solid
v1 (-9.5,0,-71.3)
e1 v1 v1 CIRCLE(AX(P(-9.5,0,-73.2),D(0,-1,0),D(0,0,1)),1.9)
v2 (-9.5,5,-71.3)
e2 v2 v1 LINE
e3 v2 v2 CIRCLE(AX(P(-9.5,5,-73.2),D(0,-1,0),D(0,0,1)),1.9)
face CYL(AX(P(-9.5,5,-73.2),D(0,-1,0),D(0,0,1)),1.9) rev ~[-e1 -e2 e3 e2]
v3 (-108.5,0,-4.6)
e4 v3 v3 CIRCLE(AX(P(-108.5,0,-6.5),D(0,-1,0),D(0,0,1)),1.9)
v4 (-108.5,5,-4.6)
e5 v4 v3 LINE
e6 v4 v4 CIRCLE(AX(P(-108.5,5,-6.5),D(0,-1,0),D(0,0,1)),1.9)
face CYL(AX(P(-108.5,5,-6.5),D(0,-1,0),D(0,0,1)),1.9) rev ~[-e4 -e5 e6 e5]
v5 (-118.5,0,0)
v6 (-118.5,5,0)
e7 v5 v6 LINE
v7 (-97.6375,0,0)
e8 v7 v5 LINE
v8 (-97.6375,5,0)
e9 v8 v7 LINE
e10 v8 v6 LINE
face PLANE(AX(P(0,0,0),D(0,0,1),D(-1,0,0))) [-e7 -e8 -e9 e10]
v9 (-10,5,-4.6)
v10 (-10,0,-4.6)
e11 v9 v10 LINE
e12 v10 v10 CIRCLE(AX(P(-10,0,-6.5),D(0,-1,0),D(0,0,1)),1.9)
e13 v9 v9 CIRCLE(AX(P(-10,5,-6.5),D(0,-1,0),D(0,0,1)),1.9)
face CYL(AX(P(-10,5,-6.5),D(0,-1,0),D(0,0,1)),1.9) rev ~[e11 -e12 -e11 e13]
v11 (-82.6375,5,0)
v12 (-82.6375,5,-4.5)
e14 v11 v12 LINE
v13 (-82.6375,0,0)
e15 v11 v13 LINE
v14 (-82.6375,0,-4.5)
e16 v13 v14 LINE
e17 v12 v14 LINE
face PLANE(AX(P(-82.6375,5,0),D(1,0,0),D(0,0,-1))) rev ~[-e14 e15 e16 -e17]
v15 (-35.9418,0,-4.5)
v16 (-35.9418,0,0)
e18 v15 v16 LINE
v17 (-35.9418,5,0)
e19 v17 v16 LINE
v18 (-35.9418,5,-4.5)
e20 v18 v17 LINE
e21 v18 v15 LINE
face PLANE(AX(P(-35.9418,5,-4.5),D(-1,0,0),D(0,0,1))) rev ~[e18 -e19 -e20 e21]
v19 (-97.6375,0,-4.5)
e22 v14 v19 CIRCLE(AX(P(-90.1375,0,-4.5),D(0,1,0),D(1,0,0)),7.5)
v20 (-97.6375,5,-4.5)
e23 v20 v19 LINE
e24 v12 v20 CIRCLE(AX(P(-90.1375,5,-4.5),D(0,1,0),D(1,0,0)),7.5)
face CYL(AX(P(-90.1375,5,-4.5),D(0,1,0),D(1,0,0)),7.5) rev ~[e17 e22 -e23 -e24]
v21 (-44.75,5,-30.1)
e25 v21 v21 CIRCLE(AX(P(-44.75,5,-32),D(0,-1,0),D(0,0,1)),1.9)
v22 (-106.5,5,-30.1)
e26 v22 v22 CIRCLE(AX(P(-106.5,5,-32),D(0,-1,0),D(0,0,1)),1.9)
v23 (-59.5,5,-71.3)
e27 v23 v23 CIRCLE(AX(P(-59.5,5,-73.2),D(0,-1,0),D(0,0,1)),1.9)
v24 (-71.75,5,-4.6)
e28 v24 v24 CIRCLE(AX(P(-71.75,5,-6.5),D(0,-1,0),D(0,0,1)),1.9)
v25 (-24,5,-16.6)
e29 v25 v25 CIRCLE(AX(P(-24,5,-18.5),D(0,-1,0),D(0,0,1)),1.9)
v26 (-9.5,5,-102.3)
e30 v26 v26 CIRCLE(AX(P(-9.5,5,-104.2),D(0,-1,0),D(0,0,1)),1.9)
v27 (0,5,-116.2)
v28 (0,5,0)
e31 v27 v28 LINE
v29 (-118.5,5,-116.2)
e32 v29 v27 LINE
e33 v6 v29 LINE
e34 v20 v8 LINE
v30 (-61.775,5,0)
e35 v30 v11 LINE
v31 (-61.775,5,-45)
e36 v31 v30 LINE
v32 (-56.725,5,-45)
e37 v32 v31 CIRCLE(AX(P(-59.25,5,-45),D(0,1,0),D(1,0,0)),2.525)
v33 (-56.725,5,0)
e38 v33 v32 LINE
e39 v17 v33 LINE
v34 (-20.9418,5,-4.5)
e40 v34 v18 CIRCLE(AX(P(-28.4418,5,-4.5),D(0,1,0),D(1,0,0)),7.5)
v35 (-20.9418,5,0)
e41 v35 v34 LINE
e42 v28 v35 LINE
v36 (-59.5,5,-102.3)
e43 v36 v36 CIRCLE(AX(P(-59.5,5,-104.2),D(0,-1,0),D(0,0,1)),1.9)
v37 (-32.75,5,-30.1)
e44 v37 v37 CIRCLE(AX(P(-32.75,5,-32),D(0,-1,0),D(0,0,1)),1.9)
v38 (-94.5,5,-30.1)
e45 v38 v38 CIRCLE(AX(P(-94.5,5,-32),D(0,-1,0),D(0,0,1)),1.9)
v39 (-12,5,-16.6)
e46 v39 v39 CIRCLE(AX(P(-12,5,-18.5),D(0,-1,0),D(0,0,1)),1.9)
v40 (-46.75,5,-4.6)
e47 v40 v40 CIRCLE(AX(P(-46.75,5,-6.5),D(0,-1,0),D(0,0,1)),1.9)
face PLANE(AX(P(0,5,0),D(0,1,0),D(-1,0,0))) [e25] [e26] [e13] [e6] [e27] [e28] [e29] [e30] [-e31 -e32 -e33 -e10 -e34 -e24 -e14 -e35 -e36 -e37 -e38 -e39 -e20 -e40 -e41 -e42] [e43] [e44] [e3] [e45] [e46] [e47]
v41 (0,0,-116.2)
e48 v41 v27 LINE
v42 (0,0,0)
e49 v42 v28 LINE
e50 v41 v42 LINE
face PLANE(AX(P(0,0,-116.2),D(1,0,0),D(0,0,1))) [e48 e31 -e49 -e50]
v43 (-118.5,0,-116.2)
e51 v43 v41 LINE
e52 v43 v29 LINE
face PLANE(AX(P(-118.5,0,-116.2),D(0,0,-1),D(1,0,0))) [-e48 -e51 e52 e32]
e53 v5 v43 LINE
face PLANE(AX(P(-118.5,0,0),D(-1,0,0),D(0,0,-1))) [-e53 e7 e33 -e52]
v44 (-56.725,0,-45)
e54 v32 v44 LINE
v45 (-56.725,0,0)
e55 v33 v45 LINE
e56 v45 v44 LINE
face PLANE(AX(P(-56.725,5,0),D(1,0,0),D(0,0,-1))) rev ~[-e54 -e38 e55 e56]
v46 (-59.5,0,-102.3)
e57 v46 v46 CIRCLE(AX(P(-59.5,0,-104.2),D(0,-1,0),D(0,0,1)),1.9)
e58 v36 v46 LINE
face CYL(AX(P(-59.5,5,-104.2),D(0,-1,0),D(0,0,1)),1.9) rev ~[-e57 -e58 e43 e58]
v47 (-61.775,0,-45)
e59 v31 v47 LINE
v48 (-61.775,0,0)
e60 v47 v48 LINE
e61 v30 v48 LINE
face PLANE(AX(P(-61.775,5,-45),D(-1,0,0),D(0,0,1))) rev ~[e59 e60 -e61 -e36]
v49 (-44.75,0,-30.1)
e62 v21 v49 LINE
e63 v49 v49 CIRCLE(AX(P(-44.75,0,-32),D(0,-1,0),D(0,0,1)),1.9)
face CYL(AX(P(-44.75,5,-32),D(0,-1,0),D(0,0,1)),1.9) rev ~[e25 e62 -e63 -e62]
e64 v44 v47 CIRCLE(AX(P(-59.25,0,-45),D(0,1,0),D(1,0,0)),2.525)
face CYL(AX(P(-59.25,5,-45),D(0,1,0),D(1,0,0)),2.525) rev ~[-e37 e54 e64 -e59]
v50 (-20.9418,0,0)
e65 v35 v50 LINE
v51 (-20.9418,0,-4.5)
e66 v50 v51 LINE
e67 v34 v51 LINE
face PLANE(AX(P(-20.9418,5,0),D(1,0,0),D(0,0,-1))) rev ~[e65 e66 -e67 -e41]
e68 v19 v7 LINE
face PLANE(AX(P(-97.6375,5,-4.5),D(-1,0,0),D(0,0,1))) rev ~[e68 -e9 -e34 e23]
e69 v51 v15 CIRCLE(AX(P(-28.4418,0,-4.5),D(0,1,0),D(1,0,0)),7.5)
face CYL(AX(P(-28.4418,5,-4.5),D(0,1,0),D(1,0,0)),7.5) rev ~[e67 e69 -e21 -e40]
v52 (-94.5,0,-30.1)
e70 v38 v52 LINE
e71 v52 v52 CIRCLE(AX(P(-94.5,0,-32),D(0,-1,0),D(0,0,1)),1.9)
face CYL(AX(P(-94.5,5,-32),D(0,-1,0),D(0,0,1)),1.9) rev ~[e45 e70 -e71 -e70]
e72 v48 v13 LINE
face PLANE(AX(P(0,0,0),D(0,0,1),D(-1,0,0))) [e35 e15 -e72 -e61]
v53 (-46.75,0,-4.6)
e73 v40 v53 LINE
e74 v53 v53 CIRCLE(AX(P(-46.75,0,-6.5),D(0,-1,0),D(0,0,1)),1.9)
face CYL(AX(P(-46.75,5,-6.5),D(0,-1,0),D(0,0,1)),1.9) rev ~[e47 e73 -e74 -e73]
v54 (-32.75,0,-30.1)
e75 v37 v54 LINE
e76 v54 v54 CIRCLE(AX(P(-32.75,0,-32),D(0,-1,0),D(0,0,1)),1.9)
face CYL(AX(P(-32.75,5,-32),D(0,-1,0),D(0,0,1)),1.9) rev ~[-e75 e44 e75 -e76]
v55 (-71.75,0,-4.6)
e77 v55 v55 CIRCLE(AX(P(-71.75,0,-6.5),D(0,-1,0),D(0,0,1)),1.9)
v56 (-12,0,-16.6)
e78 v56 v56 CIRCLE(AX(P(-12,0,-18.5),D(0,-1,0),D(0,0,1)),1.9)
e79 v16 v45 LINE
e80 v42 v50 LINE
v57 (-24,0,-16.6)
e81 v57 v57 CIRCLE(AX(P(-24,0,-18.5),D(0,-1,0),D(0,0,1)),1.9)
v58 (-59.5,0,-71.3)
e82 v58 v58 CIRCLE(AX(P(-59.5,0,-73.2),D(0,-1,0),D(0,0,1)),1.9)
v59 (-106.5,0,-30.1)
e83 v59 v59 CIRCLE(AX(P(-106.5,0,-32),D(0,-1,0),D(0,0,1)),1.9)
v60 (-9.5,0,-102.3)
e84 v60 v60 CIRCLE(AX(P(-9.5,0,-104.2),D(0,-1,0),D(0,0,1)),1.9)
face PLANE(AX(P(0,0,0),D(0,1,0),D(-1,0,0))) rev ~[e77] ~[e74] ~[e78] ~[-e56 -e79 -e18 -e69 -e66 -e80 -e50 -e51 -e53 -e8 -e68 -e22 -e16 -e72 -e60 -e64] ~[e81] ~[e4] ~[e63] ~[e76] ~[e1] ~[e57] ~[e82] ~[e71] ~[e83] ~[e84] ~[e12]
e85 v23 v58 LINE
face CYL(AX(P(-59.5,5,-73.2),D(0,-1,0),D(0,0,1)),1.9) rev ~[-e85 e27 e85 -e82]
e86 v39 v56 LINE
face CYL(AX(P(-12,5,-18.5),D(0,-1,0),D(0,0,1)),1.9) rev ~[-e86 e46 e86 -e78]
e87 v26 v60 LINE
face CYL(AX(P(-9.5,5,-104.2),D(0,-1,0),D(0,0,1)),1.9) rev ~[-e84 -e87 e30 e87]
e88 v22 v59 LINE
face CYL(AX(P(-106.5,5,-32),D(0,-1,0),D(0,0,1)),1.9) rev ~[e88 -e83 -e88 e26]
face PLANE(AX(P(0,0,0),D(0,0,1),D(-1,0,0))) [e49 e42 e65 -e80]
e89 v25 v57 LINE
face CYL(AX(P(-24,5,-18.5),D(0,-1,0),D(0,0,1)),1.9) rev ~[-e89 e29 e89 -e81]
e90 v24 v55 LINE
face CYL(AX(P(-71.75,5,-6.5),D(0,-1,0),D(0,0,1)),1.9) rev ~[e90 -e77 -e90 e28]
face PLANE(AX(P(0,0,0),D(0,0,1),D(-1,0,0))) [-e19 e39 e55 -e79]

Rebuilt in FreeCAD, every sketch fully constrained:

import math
import FreeCAD as App
import Part
import Sketcher
Q = App.Units.Quantity

doc = App.newDocument("Part")
body = doc.addObject("PartDesign::Body", "Body")

sketch1 = doc.addObject("Sketcher::SketchObject", "Sketch")
body.addObject(sketch1)
sketch1.AttachmentSupport = (doc.XZ_Plane, [""])
sketch1.MapMode = "FlatFace"
sketch1.addGeometry([
    Part.LineSegment(App.Vector(-118, 0, 0), App.Vector(0, 0, 0)),
    Part.LineSegment(App.Vector(0, 0, 0), App.Vector(0, -116, 0)),
    Part.LineSegment(App.Vector(0, -116, 0), App.Vector(-118, -116, 0)),
    Part.LineSegment(App.Vector(-118, -116, 0), App.Vector(-118, 0, 0)),
], False)
sketch1.addConstraint([
    Sketcher.Constraint("Coincident", 0, 2, 1, 1),
    Sketcher.Constraint("Coincident", 1, 2, 2, 1),
    Sketcher.Constraint("Coincident", 2, 2, 3, 1),
    Sketcher.Constraint("Coincident", 3, 2, 0, 1),
    Sketcher.Constraint("Horizontal", 0),
    Sketcher.Constraint("Vertical", 1),
    Sketcher.Constraint("Horizontal", 2),
    Sketcher.Constraint("Vertical", 3),
    Sketcher.Constraint("Coincident", 0, 2, -1, 1),
    Sketcher.Constraint("DistanceX", 0, 1, 0, 2, Q("118.5 mm")),
    Sketcher.Constraint("DistanceY", 1, 2, 1, 1, Q("116.2 mm")),
])
pad1 = doc.addObject("PartDesign::Pad", "Pad")
body.addObject(pad1)
pad1.Profile = sketch1
pad1.Length = 5
pad1.Reversed = True

sketch2 = doc.addObject("Sketcher::SketchObject", "Sketch001")
body.addObject(sketch2)
sketch2.AttachmentSupport = (doc.XZ_Plane, [""])
sketch2.MapMode = "FlatFace"
sketch2.AttachmentOffset = App.Placement(App.Vector(0, 0, -5), App.Rotation())
sketch2.addGeometry([
    Part.Circle(App.Vector(-59.5, -73.2, 0), App.Vector(0, 0, 1), 1.9),
    Part.Circle(App.Vector(-9.5, -73.2, 0), App.Vector(0, 0, 1), 1.9),
    Part.Circle(App.Vector(-59.5, -104.2, 0), App.Vector(0, 0, 1), 1.9),
    Part.Circle(App.Vector(-9.5, -104.2, 0), App.Vector(0, 0, 1), 1.9),
], False)
sketch2.addConstraint([
    Sketcher.Constraint("Equal", 0, 1),
    Sketcher.Constraint("Equal", 1, 2),
    Sketcher.Constraint("Equal", 2, 3),
    Sketcher.Constraint("Horizontal", 0, 3, 1, 3),
    Sketcher.Constraint("Horizontal", 2, 3, 3, 3),
    Sketcher.Constraint("Vertical", 0, 3, 2, 3),
    Sketcher.Constraint("Vertical", 1, 3, 3, 3),
    Sketcher.Constraint("Diameter", 0, Q("3.8 mm")),
    Sketcher.Constraint("DistanceX", 0, 3, 1, 3, Q("50 mm")),
    Sketcher.Constraint("DistanceY", 2, 3, 0, 3, Q("31 mm")),
    Sketcher.Constraint("DistanceX", 0, 3, -1, 1, Q("59.5 mm")),
    Sketcher.Constraint("DistanceY", 0, 3, -1, 1, Q("73.2 mm")),
])
doc.recompute()
hole = doc.addObject("PartDesign::Hole", "Hole")
body.addObject(hole)
hole.Profile = sketch2
hole.ThreadType = "None"
hole.Diameter = 3.8
hole.DepthType = "ThroughAll"
hole.Reversed = True

sketch3 = doc.addObject("Sketcher::SketchObject", "Sketch002")
body.addObject(sketch3)
sketch3.AttachmentSupport = (doc.XZ_Plane, [""])
sketch3.MapMode = "FlatFace"
sketch3.AttachmentOffset = App.Placement(App.Vector(0, 0, -5), App.Rotation())
sketch3.addGeometry([
    Part.LineSegment(App.Vector(-61.8, -45, 0), App.Vector(-61.8, 0, 0)),
    Part.LineSegment(App.Vector(-61.8, 0, 0), App.Vector(-56.7, 0, 0)),
    Part.LineSegment(App.Vector(-56.7, 0, 0), App.Vector(-56.7, -45, 0)),
    Part.ArcOfCircle(Part.Circle(App.Vector(-59.2, -45, 0), App.Vector(0, 0, 1), 2.5), math.radians(180), math.radians(360)),
], False)
sketch3.addConstraint([
    Sketcher.Constraint("Coincident", 0, 2, 1, 1),
    Sketcher.Constraint("Coincident", 1, 2, 2, 1),
    Sketcher.Constraint("Tangent", 2, 2, 3, 2),
    Sketcher.Constraint("Tangent", 3, 1, 0, 1),
    Sketcher.Constraint("Vertical", 0),
    Sketcher.Constraint("Horizontal", 1),
    Sketcher.Constraint("Vertical", 2),
    Sketcher.Constraint("PointOnObject", 0, 2, -1),
    Sketcher.Constraint("DistanceY", 0, 1, 0, 2, Q("45 mm")),
    Sketcher.Constraint("Radius", 3, Q("2.525 mm")),
    Sketcher.Constraint("DistanceX", 3, 3, -1, 1, Q("59.25 mm")),
])
pocket1 = doc.addObject("PartDesign::Pocket", "Pocket")
body.addObject(pocket1)
pocket1.Profile = sketch3
pocket1.Length = 10
pocket1.Reversed = True

sketch4 = doc.addObject("Sketcher::SketchObject", "Sketch003")
body.addObject(sketch4)
sketch4.AttachmentSupport = (doc.XZ_Plane, [""])
sketch4.MapMode = "FlatFace"
sketch4.AttachmentOffset = App.Placement(App.Vector(0, 0, -5), App.Rotation())
sketch4.addGeometry([
    Part.Circle(App.Vector(-106.5, -32, 0), App.Vector(0, 0, 1), 1.9),
    Part.Circle(App.Vector(-94.5, -32, 0), App.Vector(0, 0, 1), 1.9),
    Part.Circle(App.Vector(-44.8, -32, 0), App.Vector(0, 0, 1), 1.9),
    Part.Circle(App.Vector(-32.8, -32, 0), App.Vector(0, 0, 1), 1.9),
    Part.Circle(App.Vector(-12, -18.5, 0), App.Vector(0, 0, 1), 1.9),
    Part.Circle(App.Vector(-24, -18.5, 0), App.Vector(0, 0, 1), 1.9),
], False)
sketch4.addConstraint([
    Sketcher.Constraint("Equal", 0, 1),
    Sketcher.Constraint("Equal", 1, 2),
    Sketcher.Constraint("Equal", 2, 3),
    Sketcher.Constraint("Equal", 3, 4),
    Sketcher.Constraint("Equal", 4, 5),
    Sketcher.Constraint("Horizontal", 0, 3, 1, 3),
    Sketcher.Constraint("Horizontal", 1, 3, 2, 3),
    Sketcher.Constraint("Horizontal", 2, 3, 3, 3),
    Sketcher.Constraint("Horizontal", 4, 3, 5, 3),
    Sketcher.Constraint("Diameter", 0, Q("3.8 mm")),
    Sketcher.Constraint("DistanceY", 0, 3, -1, 1, Q("32 mm")),
    Sketcher.Constraint("DistanceX", 4, 3, -1, 1, Q("12 mm")),
    Sketcher.Constraint("DistanceX", 5, 3, -1, 1, Q("24 mm")),
    Sketcher.Constraint("DistanceX", 0, 3, 1, 3, Q("12 mm")),
    Sketcher.Constraint("DistanceX", 2, 3, 3, 3, Q("12 mm")),
    Sketcher.Constraint("DistanceX", 0, 3, -1, 1, Q("106.5 mm")),
    Sketcher.Constraint("DistanceY", 4, 3, -1, 1, Q("18.5 mm")),
    Sketcher.Constraint("DistanceX", 2, 3, -1, 1, Q("44.75 mm")),
])
doc.recompute()
hole2 = doc.addObject("PartDesign::Hole", "Hole001")
body.addObject(hole2)
hole2.Profile = sketch4
hole2.ThreadType = "None"
hole2.Diameter = 3.8
hole2.DepthType = "ThroughAll"
hole2.Reversed = True

sketch5 = doc.addObject("Sketcher::SketchObject", "Sketch004")
body.addObject(sketch5)
sketch5.AttachmentSupport = (doc.XZ_Plane, [""])
sketch5.MapMode = "FlatFace"
sketch5.AttachmentOffset = App.Placement(App.Vector(0, 0, -5), App.Rotation())
sketch5.addGeometry([
    Part.Circle(App.Vector(-108.5, -6.5, 0), App.Vector(0, 0, 1), 1.9),
    Part.Circle(App.Vector(-71.8, -6.5, 0), App.Vector(0, 0, 1), 1.9),
    Part.Circle(App.Vector(-46.8, -6.5, 0), App.Vector(0, 0, 1), 1.9),
    Part.Circle(App.Vector(-10, -6.5, 0), App.Vector(0, 0, 1), 1.9),
], False)
sketch5.addConstraint([
    Sketcher.Constraint("Equal", 0, 1),
    Sketcher.Constraint("Equal", 1, 2),
    Sketcher.Constraint("Equal", 2, 3),
    Sketcher.Constraint("Horizontal", 0, 3, 1, 3),
    Sketcher.Constraint("Horizontal", 1, 3, 2, 3),
    Sketcher.Constraint("Horizontal", 2, 3, 3, 3),
    Sketcher.Constraint("Diameter", 0, Q("3.8 mm")),
    Sketcher.Constraint("DistanceX", 3, 3, -1, 1, Q("10 mm")),
    Sketcher.Constraint("DistanceX", 1, 3, 2, 3, Q("25 mm")),
    Sketcher.Constraint("DistanceX", 0, 3, -1, 1, Q("108.5 mm")),
    Sketcher.Constraint("DistanceY", 0, 3, -1, 1, Q("6.5 mm")),
    Sketcher.Constraint("DistanceX", 1, 3, -1, 1, Q("71.75 mm")),
])
doc.recompute()
hole3 = doc.addObject("PartDesign::Hole", "Hole002")
body.addObject(hole3)
hole3.Profile = sketch5
hole3.ThreadType = "None"
hole3.Diameter = 3.8
hole3.DepthType = "ThroughAll"
hole3.Reversed = True

sketch6 = doc.addObject("Sketcher::SketchObject", "Sketch005")
body.addObject(sketch6)
sketch6.AttachmentSupport = (doc.XZ_Plane, [""])
sketch6.MapMode = "FlatFace"
sketch6.AttachmentOffset = App.Placement(App.Vector(0, 0, -5), App.Rotation())
sketch6.addGeometry([
    Part.LineSegment(App.Vector(-97.6, 0, 0), App.Vector(-82.6, 0, 0)),
    Part.LineSegment(App.Vector(-82.6, 0, 0), App.Vector(-82.6, -4.5, 0)),
    Part.ArcOfCircle(Part.Circle(App.Vector(-90.1, -4.5, 0), App.Vector(0, 0, 1), 7.5), math.radians(180), math.radians(360)),
    Part.LineSegment(App.Vector(-97.6, -4.5, 0), App.Vector(-97.6, 0, 0)),
    Part.LineSegment(App.Vector(-35.9, 0, 0), App.Vector(-20.9, 0, 0)),
    Part.LineSegment(App.Vector(-20.9, 0, 0), App.Vector(-20.9, -4.5, 0)),
    Part.ArcOfCircle(Part.Circle(App.Vector(-28.4, -4.5, 0), App.Vector(0, 0, 1), 7.5), math.radians(180), math.radians(360)),
    Part.LineSegment(App.Vector(-35.9, -4.5, 0), App.Vector(-35.9, 0, 0)),
], False)
sketch6.addConstraint([
    Sketcher.Constraint("Coincident", 0, 2, 1, 1),
    Sketcher.Constraint("Tangent", 1, 2, 2, 2),
    Sketcher.Constraint("Tangent", 2, 1, 3, 1),
    Sketcher.Constraint("Coincident", 3, 2, 0, 1),
    Sketcher.Constraint("Coincident", 4, 2, 5, 1),
    Sketcher.Constraint("Tangent", 5, 2, 6, 2),
    Sketcher.Constraint("Tangent", 6, 1, 7, 1),
    Sketcher.Constraint("Coincident", 7, 2, 4, 1),
    Sketcher.Constraint("Horizontal", 0),
    Sketcher.Constraint("Vertical", 1),
    Sketcher.Constraint("Vertical", 3),
    Sketcher.Constraint("Horizontal", 4),
    Sketcher.Constraint("Vertical", 5),
    Sketcher.Constraint("Vertical", 7),
    Sketcher.Constraint("Equal", 2, 6),
    Sketcher.Constraint("PointOnObject", 0, 2, -1),
    Sketcher.Constraint("PointOnObject", 4, 2, -1),
    Sketcher.Constraint("Horizontal", 2, 3, 6, 3),
    Sketcher.Constraint("Radius", 2, Q("7.5 mm")),
    Sketcher.Constraint("DistanceY", 1, 2, 1, 1, Q("4.5 mm")),
    Sketcher.Constraint("DistanceX", 2, 3, -1, 1, Q("90.1375 mm")),
    Sketcher.Constraint("DistanceX", 6, 3, -1, 1, Q("28.4418 mm")),
])
pocket2 = doc.addObject("PartDesign::Pocket", "Pocket001")
body.addObject(pocket2)
pocket2.Profile = sketch6
pocket2.Type = "ThroughAll"
pocket2.Reversed = True

doc.recompute()
